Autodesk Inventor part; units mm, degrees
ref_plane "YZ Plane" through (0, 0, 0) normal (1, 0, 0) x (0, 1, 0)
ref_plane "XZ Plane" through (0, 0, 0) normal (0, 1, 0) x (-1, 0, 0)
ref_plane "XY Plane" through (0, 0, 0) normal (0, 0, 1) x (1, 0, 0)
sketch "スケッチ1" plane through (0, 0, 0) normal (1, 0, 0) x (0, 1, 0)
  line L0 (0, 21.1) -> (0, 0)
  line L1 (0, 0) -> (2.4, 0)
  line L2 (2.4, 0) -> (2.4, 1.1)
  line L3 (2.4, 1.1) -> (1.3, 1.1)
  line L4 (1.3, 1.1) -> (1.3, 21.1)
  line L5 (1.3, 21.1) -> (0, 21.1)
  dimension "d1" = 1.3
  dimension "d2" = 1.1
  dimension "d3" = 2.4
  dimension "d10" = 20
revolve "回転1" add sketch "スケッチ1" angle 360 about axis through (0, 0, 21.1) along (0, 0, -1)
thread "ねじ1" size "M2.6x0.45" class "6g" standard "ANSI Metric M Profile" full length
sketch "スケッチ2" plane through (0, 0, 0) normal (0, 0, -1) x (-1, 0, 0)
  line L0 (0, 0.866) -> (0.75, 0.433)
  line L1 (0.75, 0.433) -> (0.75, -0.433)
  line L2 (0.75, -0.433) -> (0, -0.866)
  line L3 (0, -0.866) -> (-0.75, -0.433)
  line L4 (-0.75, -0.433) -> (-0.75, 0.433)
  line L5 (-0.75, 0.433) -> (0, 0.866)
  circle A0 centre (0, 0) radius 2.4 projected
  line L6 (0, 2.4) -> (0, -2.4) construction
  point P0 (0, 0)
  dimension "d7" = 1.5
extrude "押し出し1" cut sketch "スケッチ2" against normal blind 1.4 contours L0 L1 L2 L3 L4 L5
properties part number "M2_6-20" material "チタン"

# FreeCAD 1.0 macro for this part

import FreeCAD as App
import Part
import Sketcher
Q = App.Units.Quantity


def add_polygon(sketch, points):
    """Adds a closed chain of lines whose ends are joined by coincident constraints."""
    first, n = sketch.GeometryCount, len(points)
    for a, b in zip(points, points[1:] + points[:1]):
        sketch.addGeometry(Part.LineSegment(App.Vector(*a, 0), App.Vector(*b, 0)), False)
    for i in range(n):
        sketch.addConstraint(Sketcher.Constraint("Coincident", first + i, 2, first + (i + 1) % n, 1))

doc = App.newDocument("Part")
body = doc.addObject("PartDesign::Body", "Body")

sketch1 = doc.addObject("Sketcher::SketchObject", "Sketch")
body.addObject(sketch1)
sketch1.AttachmentSupport = (doc.YZ_Plane, [""])
sketch1.MapMode = "FlatFace"
add_polygon(sketch1, [(1.3, 21.1), (0, 21.1), (0, 0), (2.4, 0), (2.4, 1.1), (1.3, 1.1)])
sketch1.addConstraint([
    Sketcher.Constraint("Horizontal", 0),
    Sketcher.Constraint("Vertical", 1),
    Sketcher.Constraint("Horizontal", 2),
    Sketcher.Constraint("Vertical", 3),
    Sketcher.Constraint("Horizontal", 4),
    Sketcher.Constraint("Vertical", 5),
    Sketcher.Constraint("Coincident", 1, 2, -1, 1),
    Sketcher.Constraint("Equal", 4, 3),
    Sketcher.Constraint("DistanceY", 5, 1, 5, 2, 20.0),
    Sketcher.Constraint("DistanceX", 0, 2, 0, 1, 1.3),
    Sketcher.Constraint("DistanceX", 2, 1, 2, 2, 2.4),
])
revolution = doc.addObject("PartDesign::Revolution", "Revolution")
body.addObject(revolution)
revolution.Profile = sketch1
revolution.ReferenceAxis = (sketch1, ["V_Axis"])
revolution.Angle = 360

sketch2 = doc.addObject("Sketcher::SketchObject", "Sketch001")
body.addObject(sketch2)
sketch2.AttachmentSupport = (doc.XY_Plane, [""])
sketch2.MapMode = "FlatFace"
add_polygon(sketch2, [(-0.8, 0.4), (0, 0.9), (0.8, 0.4), (0.8, -0.4), (0, -0.9), (-0.8, -0.4)])
sketch2.addConstraint([
    Sketcher.Constraint("Vertical", 2),
    Sketcher.Constraint("Vertical", 5),
    Sketcher.Constraint("Symmetric", 0, 2, 3, 2, -1, 1),
    Sketcher.Constraint("Symmetric", 1, 2, 4, 2, -1, 1),
    Sketcher.Constraint("PointOnObject", 0, 2, -2),
    Sketcher.Constraint("Parallel", 0, 3),
    Sketcher.Constraint("Horizontal", 2, 2, 4, 2),
    Sketcher.Constraint("DistanceX", 4, 2, 2, 2, 1.5),
    Sketcher.Constraint("Angle", 0, Q("29.9993 deg")),
    Sketcher.Constraint("DistanceY", 2, 2, 2, 1, 0.866),
])
pocket1 = doc.addObject("PartDesign::Pocket", "Pocket")
body.addObject(pocket1)
pocket1.Profile = sketch2
pocket1.Length = 1.4
pocket1.Reversed = True

doc.recompute()
